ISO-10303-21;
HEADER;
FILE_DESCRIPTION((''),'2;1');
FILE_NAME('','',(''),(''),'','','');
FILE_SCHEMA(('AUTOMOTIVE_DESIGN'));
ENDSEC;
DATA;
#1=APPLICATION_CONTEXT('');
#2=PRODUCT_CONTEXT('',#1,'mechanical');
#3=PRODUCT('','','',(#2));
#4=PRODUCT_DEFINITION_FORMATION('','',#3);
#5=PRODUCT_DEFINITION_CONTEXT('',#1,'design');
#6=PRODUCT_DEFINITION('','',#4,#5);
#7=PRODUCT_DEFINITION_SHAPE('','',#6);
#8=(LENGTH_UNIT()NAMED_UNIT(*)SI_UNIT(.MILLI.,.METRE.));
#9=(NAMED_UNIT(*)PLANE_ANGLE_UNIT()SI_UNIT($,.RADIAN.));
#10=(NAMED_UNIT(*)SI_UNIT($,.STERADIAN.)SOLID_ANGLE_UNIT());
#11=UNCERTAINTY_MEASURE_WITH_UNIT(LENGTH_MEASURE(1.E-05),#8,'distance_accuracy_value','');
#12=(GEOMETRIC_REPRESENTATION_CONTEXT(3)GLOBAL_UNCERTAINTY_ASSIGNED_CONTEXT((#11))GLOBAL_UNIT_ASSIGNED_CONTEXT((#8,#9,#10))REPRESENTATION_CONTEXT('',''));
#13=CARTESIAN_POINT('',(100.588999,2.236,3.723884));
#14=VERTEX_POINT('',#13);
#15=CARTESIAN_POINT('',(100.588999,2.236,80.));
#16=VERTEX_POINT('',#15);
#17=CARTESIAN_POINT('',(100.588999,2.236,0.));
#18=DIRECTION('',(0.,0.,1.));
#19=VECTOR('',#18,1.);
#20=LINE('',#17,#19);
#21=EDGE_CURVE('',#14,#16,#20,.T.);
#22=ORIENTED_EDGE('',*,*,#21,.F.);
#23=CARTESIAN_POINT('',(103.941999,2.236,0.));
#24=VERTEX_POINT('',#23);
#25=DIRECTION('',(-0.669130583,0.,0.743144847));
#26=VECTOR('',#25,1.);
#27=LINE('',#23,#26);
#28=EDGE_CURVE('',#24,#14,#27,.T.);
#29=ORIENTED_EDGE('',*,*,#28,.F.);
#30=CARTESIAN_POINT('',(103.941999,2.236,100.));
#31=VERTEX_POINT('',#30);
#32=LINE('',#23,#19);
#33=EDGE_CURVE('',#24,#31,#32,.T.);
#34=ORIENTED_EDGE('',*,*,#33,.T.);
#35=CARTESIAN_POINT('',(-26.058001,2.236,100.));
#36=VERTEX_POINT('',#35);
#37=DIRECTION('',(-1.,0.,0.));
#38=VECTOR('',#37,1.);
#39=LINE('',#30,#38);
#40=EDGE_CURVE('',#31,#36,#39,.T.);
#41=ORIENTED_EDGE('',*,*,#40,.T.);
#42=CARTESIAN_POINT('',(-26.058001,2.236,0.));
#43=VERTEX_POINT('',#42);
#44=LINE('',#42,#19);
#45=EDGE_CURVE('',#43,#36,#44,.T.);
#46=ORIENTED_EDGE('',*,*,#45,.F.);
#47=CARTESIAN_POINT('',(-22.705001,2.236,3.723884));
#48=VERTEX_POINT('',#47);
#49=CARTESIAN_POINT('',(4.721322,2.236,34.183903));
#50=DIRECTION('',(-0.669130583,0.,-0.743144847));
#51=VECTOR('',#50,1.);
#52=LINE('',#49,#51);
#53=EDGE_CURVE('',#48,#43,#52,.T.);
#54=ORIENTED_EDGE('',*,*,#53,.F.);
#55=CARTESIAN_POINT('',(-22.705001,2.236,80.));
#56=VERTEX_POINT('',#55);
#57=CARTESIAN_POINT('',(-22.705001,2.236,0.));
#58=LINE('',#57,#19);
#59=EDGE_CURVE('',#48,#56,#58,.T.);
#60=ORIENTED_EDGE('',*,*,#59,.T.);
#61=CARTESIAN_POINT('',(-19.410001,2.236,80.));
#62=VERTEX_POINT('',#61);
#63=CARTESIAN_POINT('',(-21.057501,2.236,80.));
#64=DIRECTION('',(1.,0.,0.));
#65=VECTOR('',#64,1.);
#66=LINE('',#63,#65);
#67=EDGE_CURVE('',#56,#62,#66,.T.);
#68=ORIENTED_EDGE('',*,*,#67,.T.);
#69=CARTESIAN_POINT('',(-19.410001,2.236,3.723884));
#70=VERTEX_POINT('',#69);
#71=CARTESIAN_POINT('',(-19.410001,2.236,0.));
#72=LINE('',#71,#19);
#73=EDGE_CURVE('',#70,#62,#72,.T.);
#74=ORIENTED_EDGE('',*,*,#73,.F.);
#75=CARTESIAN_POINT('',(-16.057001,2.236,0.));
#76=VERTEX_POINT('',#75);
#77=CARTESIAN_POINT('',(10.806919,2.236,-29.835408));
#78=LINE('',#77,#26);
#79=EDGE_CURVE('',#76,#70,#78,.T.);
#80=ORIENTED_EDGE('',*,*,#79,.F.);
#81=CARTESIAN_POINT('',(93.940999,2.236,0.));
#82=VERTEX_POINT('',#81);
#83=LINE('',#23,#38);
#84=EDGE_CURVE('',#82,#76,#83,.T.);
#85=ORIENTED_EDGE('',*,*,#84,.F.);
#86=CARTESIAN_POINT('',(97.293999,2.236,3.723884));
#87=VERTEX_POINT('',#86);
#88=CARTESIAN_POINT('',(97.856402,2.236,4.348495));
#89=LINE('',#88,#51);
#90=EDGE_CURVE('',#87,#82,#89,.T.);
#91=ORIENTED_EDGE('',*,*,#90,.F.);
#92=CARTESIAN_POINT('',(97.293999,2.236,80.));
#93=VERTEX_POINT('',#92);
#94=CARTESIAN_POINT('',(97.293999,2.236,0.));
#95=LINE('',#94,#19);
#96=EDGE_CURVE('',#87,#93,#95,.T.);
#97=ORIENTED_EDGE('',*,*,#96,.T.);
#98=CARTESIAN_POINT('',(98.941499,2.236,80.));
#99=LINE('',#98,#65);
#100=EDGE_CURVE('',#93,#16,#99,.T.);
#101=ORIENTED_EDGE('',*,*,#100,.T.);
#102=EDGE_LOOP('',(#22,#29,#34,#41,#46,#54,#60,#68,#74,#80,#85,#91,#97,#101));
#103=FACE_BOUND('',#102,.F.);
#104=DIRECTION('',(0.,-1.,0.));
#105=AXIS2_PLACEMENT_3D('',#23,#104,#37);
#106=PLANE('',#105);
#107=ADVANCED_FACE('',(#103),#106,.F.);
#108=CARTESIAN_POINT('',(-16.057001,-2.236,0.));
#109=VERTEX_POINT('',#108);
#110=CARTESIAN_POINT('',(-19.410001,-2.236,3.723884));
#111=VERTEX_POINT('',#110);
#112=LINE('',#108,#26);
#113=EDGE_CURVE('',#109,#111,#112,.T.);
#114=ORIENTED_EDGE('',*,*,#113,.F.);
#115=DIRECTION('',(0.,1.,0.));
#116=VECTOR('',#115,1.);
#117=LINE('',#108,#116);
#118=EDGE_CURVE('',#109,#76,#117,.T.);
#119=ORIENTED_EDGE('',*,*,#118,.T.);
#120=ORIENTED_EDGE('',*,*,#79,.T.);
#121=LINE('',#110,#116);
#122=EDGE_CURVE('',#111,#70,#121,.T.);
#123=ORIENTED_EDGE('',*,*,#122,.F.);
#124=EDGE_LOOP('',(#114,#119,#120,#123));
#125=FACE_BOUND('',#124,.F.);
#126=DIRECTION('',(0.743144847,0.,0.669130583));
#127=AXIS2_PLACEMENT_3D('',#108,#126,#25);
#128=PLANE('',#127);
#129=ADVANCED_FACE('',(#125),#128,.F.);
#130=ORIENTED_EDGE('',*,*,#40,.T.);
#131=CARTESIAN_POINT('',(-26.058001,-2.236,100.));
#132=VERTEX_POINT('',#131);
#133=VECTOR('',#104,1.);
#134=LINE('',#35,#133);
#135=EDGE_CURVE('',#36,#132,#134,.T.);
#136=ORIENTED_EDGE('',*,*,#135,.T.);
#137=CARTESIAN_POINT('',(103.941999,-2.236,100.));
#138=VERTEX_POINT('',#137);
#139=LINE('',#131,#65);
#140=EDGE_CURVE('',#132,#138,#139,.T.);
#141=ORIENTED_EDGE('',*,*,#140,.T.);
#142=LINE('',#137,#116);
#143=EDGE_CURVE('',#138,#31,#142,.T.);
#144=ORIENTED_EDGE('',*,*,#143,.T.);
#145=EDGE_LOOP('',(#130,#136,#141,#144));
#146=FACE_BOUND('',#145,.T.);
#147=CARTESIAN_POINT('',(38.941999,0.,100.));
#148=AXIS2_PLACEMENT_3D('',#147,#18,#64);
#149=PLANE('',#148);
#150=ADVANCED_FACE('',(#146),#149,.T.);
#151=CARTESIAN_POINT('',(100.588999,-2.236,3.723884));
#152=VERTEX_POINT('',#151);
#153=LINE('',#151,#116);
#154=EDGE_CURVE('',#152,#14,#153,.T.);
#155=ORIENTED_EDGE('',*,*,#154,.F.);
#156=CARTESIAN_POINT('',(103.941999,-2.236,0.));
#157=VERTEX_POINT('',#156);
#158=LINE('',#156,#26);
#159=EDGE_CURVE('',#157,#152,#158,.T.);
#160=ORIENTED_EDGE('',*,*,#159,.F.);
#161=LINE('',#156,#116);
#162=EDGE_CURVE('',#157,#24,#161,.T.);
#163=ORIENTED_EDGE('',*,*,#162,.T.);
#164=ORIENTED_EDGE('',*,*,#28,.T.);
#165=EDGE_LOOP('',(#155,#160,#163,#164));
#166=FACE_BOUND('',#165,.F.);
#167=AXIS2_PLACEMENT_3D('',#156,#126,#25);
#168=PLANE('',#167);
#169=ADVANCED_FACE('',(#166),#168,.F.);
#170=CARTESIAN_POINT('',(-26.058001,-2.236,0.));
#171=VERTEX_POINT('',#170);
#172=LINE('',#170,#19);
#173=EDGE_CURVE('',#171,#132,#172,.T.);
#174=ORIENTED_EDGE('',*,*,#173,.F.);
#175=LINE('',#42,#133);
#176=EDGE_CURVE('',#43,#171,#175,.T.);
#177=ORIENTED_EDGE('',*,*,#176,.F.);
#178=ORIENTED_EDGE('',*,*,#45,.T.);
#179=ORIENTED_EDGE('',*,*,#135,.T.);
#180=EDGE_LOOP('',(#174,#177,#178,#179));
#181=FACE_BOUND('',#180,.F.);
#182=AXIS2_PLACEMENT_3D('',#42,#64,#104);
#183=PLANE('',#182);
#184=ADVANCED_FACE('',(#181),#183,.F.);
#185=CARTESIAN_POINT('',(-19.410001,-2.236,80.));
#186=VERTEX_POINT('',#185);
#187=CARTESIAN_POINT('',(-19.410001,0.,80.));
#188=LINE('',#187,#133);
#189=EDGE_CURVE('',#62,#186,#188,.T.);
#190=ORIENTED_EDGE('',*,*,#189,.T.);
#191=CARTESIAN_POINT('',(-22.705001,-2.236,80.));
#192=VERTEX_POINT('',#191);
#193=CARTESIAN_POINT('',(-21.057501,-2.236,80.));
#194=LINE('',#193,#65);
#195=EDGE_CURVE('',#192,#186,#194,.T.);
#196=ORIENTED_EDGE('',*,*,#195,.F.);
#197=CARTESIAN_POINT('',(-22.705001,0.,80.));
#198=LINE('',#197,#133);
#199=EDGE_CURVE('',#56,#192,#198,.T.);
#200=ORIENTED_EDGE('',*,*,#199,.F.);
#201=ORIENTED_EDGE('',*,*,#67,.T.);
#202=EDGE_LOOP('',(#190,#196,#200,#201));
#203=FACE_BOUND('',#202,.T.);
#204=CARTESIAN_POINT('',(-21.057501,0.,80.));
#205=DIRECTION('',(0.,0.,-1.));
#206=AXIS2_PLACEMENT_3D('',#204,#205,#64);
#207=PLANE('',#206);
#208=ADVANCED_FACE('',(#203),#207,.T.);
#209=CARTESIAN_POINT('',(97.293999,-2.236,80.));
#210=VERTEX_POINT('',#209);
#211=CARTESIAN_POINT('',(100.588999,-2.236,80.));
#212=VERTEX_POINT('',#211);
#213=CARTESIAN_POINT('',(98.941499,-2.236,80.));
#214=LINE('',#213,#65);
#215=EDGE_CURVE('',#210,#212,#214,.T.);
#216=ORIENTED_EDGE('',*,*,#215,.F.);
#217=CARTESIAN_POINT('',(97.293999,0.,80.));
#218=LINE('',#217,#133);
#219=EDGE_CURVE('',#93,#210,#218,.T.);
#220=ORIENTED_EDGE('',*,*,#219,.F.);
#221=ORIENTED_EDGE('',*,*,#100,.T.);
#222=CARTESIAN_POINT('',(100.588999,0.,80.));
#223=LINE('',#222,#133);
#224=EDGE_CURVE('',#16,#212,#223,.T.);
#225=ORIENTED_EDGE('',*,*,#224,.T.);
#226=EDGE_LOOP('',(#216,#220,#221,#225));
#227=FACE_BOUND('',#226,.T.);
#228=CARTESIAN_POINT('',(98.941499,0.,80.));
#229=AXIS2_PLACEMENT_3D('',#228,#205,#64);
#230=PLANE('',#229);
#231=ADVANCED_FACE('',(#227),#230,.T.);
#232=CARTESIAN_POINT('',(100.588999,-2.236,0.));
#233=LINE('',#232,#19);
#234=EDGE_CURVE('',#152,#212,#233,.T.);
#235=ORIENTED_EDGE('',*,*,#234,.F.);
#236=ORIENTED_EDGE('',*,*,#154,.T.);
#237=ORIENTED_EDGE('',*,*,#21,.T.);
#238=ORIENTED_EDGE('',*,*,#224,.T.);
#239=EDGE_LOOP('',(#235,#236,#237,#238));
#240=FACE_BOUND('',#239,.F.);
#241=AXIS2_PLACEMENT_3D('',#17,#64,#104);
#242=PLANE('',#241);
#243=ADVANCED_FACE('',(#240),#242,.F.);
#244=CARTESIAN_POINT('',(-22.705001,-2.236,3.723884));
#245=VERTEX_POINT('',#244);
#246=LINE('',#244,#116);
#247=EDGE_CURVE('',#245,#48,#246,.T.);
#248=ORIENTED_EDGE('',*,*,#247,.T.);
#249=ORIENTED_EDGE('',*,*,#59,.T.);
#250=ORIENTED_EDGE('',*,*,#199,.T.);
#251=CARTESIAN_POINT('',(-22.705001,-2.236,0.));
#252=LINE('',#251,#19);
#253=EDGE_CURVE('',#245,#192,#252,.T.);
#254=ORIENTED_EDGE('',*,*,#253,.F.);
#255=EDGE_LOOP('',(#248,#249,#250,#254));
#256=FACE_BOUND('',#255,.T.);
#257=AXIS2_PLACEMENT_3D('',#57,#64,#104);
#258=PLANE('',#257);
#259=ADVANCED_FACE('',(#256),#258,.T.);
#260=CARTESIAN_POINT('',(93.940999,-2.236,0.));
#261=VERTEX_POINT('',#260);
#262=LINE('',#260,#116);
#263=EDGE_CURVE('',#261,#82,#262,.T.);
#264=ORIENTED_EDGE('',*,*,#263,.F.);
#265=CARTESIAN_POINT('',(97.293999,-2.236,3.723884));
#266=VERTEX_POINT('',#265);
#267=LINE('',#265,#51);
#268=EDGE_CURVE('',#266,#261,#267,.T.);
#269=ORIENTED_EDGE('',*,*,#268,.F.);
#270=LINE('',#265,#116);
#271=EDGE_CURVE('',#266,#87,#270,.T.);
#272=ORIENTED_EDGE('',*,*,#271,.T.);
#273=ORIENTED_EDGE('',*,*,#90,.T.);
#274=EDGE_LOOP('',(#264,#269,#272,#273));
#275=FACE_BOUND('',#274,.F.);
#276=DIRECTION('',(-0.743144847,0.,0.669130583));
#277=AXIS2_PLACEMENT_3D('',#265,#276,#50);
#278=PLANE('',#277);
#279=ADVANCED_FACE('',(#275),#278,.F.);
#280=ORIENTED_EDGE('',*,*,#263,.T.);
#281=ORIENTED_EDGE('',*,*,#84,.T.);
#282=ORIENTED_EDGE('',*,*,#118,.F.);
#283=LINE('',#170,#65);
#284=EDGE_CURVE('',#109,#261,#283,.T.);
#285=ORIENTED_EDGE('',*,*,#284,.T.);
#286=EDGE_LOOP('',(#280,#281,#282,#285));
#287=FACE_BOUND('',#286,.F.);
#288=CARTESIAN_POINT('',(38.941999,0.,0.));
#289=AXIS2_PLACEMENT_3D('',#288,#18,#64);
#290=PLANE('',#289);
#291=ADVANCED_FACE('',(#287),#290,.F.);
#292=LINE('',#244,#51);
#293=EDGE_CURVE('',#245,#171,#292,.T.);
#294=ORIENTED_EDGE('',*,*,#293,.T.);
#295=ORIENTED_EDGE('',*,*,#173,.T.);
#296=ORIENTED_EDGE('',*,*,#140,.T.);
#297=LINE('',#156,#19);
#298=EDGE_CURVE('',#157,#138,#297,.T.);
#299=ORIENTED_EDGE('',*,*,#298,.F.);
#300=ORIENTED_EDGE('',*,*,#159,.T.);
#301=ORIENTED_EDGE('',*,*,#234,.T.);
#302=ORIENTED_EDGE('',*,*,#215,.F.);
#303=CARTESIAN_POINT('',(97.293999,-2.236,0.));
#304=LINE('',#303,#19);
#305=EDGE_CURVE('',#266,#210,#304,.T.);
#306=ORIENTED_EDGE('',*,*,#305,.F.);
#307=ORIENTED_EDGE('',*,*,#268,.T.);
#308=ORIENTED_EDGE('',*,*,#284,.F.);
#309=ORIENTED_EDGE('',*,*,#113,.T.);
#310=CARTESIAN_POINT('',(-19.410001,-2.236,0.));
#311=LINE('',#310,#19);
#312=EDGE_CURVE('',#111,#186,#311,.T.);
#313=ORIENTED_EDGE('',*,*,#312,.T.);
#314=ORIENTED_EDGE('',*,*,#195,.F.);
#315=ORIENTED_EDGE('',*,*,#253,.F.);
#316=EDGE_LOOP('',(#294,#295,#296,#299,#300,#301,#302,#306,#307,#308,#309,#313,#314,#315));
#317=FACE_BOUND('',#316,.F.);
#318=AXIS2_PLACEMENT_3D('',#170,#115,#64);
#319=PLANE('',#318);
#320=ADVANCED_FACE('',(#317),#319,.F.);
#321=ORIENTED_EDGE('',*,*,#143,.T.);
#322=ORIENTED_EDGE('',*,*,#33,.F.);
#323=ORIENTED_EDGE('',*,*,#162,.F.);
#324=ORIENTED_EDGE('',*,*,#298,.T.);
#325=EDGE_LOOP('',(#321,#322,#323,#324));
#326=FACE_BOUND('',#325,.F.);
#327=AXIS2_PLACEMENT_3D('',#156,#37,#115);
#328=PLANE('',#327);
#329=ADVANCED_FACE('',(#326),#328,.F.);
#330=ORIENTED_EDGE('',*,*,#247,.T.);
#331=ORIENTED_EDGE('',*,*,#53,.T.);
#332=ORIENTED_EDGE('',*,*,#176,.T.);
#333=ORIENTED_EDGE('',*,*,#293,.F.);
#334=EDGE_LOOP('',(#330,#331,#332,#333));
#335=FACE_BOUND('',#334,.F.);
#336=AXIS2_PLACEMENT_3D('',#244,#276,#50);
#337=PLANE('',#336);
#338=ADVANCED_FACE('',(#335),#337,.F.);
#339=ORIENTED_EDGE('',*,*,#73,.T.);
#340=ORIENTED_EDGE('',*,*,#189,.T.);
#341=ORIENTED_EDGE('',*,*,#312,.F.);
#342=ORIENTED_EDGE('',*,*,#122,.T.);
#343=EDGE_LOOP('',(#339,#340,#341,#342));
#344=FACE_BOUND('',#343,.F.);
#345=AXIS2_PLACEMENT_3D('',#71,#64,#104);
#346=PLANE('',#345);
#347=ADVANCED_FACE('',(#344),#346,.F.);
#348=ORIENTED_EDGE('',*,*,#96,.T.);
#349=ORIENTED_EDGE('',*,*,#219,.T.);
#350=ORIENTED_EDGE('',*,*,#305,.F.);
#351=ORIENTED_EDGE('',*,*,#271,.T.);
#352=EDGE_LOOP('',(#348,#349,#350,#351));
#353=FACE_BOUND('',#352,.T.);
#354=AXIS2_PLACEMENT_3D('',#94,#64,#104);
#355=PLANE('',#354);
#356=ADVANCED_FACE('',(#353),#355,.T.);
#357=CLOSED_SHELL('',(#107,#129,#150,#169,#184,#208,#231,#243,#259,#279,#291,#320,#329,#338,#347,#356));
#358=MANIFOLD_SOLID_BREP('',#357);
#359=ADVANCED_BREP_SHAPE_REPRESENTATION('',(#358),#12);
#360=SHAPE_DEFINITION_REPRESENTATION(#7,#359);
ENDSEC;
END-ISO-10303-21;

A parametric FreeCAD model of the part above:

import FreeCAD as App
import Part
import Sketcher
Q = App.Units.Quantity


def add_polygon(sketch, points):
    """Adds a closed chain of lines whose ends are joined by coincident constraints."""
    first, n = sketch.GeometryCount, len(points)
    for a, b in zip(points, points[1:] + points[:1]):
        sketch.addGeometry(Part.LineSegment(App.Vector(*a, 0), App.Vector(*b, 0)), False)
    for i in range(n):
        sketch.addConstraint(Sketcher.Constraint("Coincident", first + i, 2, first + (i + 1) % n, 1))

doc = App.newDocument("Part")
body = doc.addObject("PartDesign::Body", "Body")

sketch1 = body.newObject("Sketcher::SketchObject", "Sketch")
sketch1.AttachmentSupport = (doc.getObject("XY_Plane"), [""])
sketch1.MapMode = "FlatFace"
add_polygon(sketch1, [(103.941999, 2.236), (-26.058001, 2.236), (-26.058001, -2.236), (103.941999, -2.236)])
sketch1.addConstraint(Sketcher.Constraint("Horizontal", 0))
sketch1.addConstraint(Sketcher.Constraint("Vertical", 1))
sketch1.addConstraint(Sketcher.Constraint("Horizontal", 2))
sketch1.addConstraint(Sketcher.Constraint("Vertical", 3))
sketch1.addConstraint(Sketcher.Constraint("DistanceX", 0, 2, 0, 1, 130.0))
sketch1.addConstraint(Sketcher.Constraint("DistanceY", 1, 2, 1, 1, 4.472))
sketch1.addConstraint(Sketcher.Constraint("DistanceX", 0, 2, -1, 1, 26.058001))
sketch1.addConstraint(Sketcher.Constraint("DistanceY", -1, 1, 0, 2, 2.236))
pad1 = body.newObject("PartDesign::Pad", "Pad")
pad1.Profile = sketch1
pad1.Length = 100

sketch2 = body.newObject("Sketcher::SketchObject", "Sketch001")
sketch2.AttachmentSupport = (doc.getObject("XY_Plane"), [""])
sketch2.MapMode = "FlatFace"
add_polygon(sketch2, [(-22.705001, -2.236), (-22.705001, 2.236), (-19.410001, 2.236), (-19.410001, -2.236)])
sketch2.addConstraint(Sketcher.Constraint("Vertical", 0))
sketch2.addConstraint(Sketcher.Constraint("Horizontal", 1))
sketch2.addConstraint(Sketcher.Constraint("Vertical", 2))
sketch2.addConstraint(Sketcher.Constraint("Horizontal", 3))
sketch2.addConstraint(Sketcher.Constraint("DistanceX", 1, 1, 1, 2, 3.295))
sketch2.addConstraint(Sketcher.Constraint("DistanceY", 0, 1, 0, 2, 4.472))
sketch2.addConstraint(Sketcher.Constraint("DistanceX", 1, 2, -1, 1, 19.410001))
sketch2.addConstraint(Sketcher.Constraint("DistanceY", -1, 1, 0, 2, 2.236))
pocket1 = body.newObject("PartDesign::Pocket", "Pocket")
pocket1.Profile = sketch2
pocket1.Length = 80
pocket1.Reversed = True

sketch3 = body.newObject("Sketcher::SketchObject", "Sketch002")
sketch3.AttachmentSupport = (doc.getObject("XY_Plane"), [""])
sketch3.MapMode = "FlatFace"
add_polygon(sketch3, [(97.293999, -2.236), (97.293999, 2.236), (100.588999, 2.236), (100.588999, -2.236)])
sketch3.addConstraint(Sketcher.Constraint("Vertical", 0))
sketch3.addConstraint(Sketcher.Constraint("Horizontal", 1))
sketch3.addConstraint(Sketcher.Constraint("Vertical", 2))
sketch3.addConstraint(Sketcher.Constraint("Horizontal", 3))
sketch3.addConstraint(Sketcher.Constraint("DistanceX", 1, 1, 1, 2, 3.295))
sketch3.addConstraint(Sketcher.Constraint("DistanceY", 0, 1, 0, 2, 4.472))
sketch3.addConstraint(Sketcher.Constraint("DistanceX", -1, 1, 0, 2, 97.293999))
sketch3.addConstraint(Sketcher.Constraint("DistanceY", -1, 1, 0, 2, 2.236))
pocket2 = body.newObject("PartDesign::Pocket", "Pocket001")
pocket2.Profile = sketch3
pocket2.Length = 80
pocket2.Reversed = True

sketch4 = body.newObject("Sketcher::SketchObject", "Sketch003")
sketch4.AttachmentSupport = (doc.getObject("XZ_Plane"), [""])
sketch4.MapMode = "FlatFace"
sketch4.AttachmentOffset = App.Placement(App.Vector(0, 0, 2.236), App.Rotation())
add_polygon(sketch4, [(-22.705001, 3.723884), (-26.058001, 0), (-22.705001, 0)])
add_polygon(sketch4, [(-16.057001, 0), (-19.410001, 3.723884), (-19.410001, 0)])
sketch4.addConstraint(Sketcher.Constraint("Horizontal", 1))
sketch4.addConstraint(Sketcher.Constraint("Vertical", 2))
sketch4.addConstraint(Sketcher.Constraint("Vertical", 4))
sketch4.addConstraint(Sketcher.Constraint("Horizontal", 5))
sketch4.addConstraint(Sketcher.Constraint("PointOnObject", 0, 2, -1))
sketch4.addConstraint(Sketcher.Constraint("PointOnObject", 4, 2, -1))
sketch4.addConstraint(Sketcher.Constraint("Horizontal", 2, 2, 3, 2))
sketch4.addConstraint(Sketcher.Constraint("Equal", 1, 5))
sketch4.addConstraint(Sketcher.Constraint("Angle", 0, Q("-131.999998 deg")))
sketch4.addConstraint(Sketcher.Constraint("DistanceX", 1, 1, 1, 2, 3.353))
sketch4.addConstraint(Sketcher.Constraint("DistanceX", 3, 2, -1, 1, 19.410001))
sketch4.addConstraint(Sketcher.Constraint("DistanceX", 0, 2, -1, 1, 26.058001))
pocket3 = body.newObject("PartDesign::Pocket", "Pocket002")
pocket3.Profile = sketch4
pocket3.Length = 25

sketch5 = body.newObject("Sketcher::SketchObject", "Sketch004")
sketch5.AttachmentSupport = (doc.getObject("XZ_Plane"), [""])
sketch5.MapMode = "FlatFace"
sketch5.AttachmentOffset = App.Placement(App.Vector(0, 0, 2.236), App.Rotation())
add_polygon(sketch5, [(97.293999, 0), (97.293999, 3.723884), (93.940999, 0)])
add_polygon(sketch5, [(100.588999, 0), (103.941999, 0), (100.588999, 3.723884)])
sketch5.addConstraint(Sketcher.Constraint("Vertical", 0))
sketch5.addConstraint(Sketcher.Constraint("Horizontal", 2))
sketch5.addConstraint(Sketcher.Constraint("Horizontal", 3))
sketch5.addConstraint(Sketcher.Constraint("Vertical", 5))
sketch5.addConstraint(Sketcher.Constraint("PointOnObject", 1, 2, -1))
sketch5.addConstraint(Sketcher.Constraint("PointOnObject", 3, 2, -1))
sketch5.addConstraint(Sketcher.Constraint("Horizontal", 0, 2, 4, 2))
sketch5.addConstraint(Sketcher.Constraint("Equal", 2, 3))
sketch5.addConstraint(Sketcher.Constraint("Angle", 1, Q("-131.999998 deg")))
sketch5.addConstraint(Sketcher.Constraint("DistanceX", 2, 1, 2, 2, 3.353))
sketch5.addConstraint(Sketcher.Constraint("DistanceX", -1, 1, 0, 2, 97.293999))
sketch5.addConstraint(Sketcher.Constraint("DistanceX", -1, 1, 3, 2, 103.941999))
pocket4 = body.newObject("PartDesign::Pocket", "Pocket003")
pocket4.Profile = sketch5
pocket4.Length = 25

doc.recompute()
